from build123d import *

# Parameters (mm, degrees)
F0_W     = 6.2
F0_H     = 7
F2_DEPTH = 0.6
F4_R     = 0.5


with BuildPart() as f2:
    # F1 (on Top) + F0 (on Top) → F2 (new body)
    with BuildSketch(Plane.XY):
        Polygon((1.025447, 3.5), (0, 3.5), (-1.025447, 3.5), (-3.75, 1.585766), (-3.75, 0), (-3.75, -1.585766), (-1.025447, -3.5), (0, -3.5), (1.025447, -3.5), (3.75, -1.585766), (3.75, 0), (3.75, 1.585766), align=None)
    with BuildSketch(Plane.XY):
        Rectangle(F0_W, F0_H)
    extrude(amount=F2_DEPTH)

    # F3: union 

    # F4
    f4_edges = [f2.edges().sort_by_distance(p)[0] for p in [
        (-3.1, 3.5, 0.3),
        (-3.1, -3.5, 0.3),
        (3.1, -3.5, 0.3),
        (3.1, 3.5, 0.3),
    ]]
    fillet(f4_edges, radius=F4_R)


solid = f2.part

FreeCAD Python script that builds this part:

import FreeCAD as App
import Part
import Sketcher
from FreeCAD import Vector


def edges_at(feature, points):
    """Names of the edges that pass closest to the given points."""
    edges = feature.Shape.Edges
    near = lambda p: min(range(len(edges)), key=lambda i: edges[i].distToShape(Part.Vertex(*p))[0])
    return sorted({f"Edge{near(p) + 1}" for p in points})


def add_polygon(sketch, points):
    """Adds a closed chain of lines whose ends are joined by coincident constraints."""
    first, n = sketch.GeometryCount, len(points)
    for a, b in zip(points, points[1:] + points[:1]):
        sketch.addGeometry(Part.LineSegment(App.Vector(*a, 0), App.Vector(*b, 0)), False)
    for i in range(n):
        sketch.addConstraint(Sketcher.Constraint("Coincident", first + i, 2, first + (i + 1) % n, 1))

doc = App.newDocument("Part")
params = doc.addObject("Spreadsheet::Sheet", "Params")
for row, (alias, value) in enumerate([
    ("sketch1_width", "6.2 mm"),
    ("pad1_length", "0.6 mm"),
    ("fillet_radius", "0.5 mm"),
], start=1):
    params.set(f"A{row}", alias)
    params.set(f"B{row}", "=" + value)
    params.setAlias(f"B{row}", alias)

body = doc.addObject("PartDesign::Body", "Body")

sketch1 = body.newObject("Sketcher::SketchObject", "Sketch")
sketch1.AttachmentSupport = (doc.getObject("XY_Plane"), [""])
sketch1.MapMode = "FlatFace"
add_polygon(sketch1, [(3.1, -3.5), (3.1, -2.042447), (3.75, -1.585766), (3.75, 1.585766), (3.1, 2.042447), (3.1, 3.5), (-3.1, 3.5), (-3.1, 2.042447), (-3.75, 1.585766), (-3.75, -1.585766), (-3.1, -2.042447), (-3.1, -3.5)])
sketch1.addConstraint([
    Sketcher.Constraint("Vertical", 0),
    Sketcher.Constraint("Vertical", 2),
    Sketcher.Constraint("Vertical", 4),
    Sketcher.Constraint("Horizontal", 5),
    Sketcher.Constraint("Vertical", 6),
    Sketcher.Constraint("Vertical", 8),
    Sketcher.Constraint("Vertical", 10),
    Sketcher.Constraint("Horizontal", 11),
    Sketcher.Constraint("Symmetric", 0, 2, 6, 2, -1, 1),
    Sketcher.Constraint("Symmetric", 1, 2, 7, 2, -1, 1),
    Sketcher.Constraint("Symmetric", 3, 2, 9, 2, -1, 1),
    Sketcher.Constraint("Symmetric", 3, 2, 6, 2, -2),
    Sketcher.Constraint("Parallel", 3, 9),
    Sketcher.Constraint("Horizontal", 2, 2, 7, 2),
    Sketcher.Constraint("Equal", 0, 4),
    Sketcher.Constraint("DistanceX", 5, 2, 5, 1, 6.2),
    Sketcher.Constraint("DistanceY", -1, 1, 4, 2, 3.5),
    Sketcher.Constraint("DistanceX", 7, 2, 2, 2, 7.5),
    Sketcher.Constraint("DistanceY", 2, 1, 2, 2, 3.171532),
    Sketcher.Constraint("Distance", 1, 0.794391),
])
sketch1.setExpression("Constraints[27]", "Params.sketch1_width")
pad1 = body.newObject("PartDesign::Pad", "Pad")
pad1.Profile = sketch1
pad1.setExpression("Length", "Params.pad1_length")
doc.recompute()

fillet = body.newObject("PartDesign::Fillet", "Fillet")
fillet.Base = (pad1, edges_at(pad1, [
    (-3.1, 3.5, 0.3),
    (-3.1, -3.5, 0.3),
    (3.1, -3.5, 0.3),
    (3.1, 3.5, 0.3),
]))
fillet.setExpression("Radius", "Params.fillet_radius")

doc.recompute()
